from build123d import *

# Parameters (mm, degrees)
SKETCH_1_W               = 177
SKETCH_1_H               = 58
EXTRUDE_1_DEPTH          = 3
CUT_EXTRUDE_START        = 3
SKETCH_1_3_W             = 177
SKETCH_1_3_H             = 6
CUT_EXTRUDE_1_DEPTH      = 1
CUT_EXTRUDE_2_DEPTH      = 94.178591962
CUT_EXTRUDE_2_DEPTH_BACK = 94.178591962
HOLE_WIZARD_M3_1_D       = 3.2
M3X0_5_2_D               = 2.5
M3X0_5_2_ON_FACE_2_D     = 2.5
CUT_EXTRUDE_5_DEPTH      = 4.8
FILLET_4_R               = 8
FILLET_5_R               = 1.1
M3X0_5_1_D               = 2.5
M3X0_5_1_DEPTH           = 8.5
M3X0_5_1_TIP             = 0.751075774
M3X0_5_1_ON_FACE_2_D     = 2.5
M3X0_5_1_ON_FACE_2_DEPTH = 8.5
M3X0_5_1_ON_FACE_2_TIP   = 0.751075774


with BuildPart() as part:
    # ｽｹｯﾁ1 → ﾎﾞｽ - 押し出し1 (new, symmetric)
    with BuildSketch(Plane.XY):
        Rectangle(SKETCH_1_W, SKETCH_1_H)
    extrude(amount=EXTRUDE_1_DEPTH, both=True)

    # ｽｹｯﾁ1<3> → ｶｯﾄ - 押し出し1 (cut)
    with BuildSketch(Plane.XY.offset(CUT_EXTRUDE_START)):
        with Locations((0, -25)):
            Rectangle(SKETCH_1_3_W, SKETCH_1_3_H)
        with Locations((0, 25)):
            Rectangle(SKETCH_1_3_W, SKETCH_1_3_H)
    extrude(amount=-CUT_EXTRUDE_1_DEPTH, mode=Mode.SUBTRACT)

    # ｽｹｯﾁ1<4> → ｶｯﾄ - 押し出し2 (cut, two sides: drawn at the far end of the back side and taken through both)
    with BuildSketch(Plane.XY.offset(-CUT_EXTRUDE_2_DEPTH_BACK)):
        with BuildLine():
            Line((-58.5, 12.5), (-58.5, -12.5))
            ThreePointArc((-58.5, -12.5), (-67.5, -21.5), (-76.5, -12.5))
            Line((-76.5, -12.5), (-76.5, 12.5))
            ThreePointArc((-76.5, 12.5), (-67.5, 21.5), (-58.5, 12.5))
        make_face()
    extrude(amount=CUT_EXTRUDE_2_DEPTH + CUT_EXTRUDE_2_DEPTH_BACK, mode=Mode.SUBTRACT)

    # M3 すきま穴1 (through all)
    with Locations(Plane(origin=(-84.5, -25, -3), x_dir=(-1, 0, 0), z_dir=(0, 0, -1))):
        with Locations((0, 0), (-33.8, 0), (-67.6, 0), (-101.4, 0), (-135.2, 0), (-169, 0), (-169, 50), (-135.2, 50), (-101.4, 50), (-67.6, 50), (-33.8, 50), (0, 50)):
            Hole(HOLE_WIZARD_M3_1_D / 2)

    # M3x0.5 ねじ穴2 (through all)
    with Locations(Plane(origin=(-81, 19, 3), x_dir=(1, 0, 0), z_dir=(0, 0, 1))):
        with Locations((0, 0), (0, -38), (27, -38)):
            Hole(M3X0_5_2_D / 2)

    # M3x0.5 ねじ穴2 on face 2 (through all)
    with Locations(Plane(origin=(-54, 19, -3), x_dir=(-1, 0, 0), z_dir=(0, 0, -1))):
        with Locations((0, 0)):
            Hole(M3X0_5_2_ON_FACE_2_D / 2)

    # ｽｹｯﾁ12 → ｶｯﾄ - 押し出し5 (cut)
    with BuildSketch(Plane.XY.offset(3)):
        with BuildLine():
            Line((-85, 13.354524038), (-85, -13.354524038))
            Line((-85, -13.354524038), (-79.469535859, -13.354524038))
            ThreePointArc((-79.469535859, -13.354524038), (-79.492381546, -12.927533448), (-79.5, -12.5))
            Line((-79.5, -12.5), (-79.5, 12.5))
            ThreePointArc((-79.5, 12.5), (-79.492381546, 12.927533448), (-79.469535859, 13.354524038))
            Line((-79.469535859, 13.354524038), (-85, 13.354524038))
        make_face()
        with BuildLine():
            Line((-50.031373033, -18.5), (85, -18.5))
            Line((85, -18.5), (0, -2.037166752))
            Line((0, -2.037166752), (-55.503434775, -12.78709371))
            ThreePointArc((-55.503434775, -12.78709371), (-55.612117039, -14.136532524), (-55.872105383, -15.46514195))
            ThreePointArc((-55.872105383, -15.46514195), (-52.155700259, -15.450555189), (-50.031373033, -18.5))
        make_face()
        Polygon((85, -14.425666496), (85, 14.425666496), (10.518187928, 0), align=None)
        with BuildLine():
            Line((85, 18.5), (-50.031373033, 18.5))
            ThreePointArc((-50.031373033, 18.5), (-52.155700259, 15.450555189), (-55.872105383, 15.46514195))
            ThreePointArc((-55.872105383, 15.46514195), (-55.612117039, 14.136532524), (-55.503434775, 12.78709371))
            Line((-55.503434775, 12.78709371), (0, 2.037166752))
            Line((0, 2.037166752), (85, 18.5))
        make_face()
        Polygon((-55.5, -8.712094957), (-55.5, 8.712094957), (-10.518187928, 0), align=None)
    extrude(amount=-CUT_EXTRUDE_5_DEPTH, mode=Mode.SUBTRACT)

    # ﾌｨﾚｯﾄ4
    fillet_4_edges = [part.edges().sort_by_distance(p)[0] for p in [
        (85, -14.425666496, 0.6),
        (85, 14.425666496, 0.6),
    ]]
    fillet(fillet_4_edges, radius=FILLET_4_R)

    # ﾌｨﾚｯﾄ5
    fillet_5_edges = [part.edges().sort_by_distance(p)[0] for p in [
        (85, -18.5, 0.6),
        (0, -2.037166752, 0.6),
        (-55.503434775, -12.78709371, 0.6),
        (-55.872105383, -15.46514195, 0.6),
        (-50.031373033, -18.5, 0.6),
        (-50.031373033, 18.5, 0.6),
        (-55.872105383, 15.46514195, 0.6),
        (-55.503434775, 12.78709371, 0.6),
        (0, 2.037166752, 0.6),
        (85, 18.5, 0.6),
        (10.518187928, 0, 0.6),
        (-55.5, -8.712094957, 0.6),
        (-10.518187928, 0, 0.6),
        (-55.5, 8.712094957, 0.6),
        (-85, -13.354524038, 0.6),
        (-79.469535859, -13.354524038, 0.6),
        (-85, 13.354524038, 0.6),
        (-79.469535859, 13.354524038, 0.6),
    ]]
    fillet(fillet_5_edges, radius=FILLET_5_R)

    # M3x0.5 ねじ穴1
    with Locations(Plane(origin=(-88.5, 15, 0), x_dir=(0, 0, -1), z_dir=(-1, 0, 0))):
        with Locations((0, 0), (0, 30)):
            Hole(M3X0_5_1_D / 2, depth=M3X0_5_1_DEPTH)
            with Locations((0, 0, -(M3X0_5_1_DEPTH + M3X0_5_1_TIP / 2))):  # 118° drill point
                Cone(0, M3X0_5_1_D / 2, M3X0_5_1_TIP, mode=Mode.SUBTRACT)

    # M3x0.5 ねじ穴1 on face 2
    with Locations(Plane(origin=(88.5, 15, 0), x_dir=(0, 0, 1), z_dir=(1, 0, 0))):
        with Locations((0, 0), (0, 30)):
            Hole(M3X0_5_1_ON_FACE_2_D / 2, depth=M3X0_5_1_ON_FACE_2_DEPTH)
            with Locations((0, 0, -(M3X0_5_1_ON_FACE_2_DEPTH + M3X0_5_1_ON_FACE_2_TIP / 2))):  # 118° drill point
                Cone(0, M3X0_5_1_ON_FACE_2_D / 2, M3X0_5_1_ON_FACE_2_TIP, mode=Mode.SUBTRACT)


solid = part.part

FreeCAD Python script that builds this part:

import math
import FreeCAD as App
import Part
import Sketcher
Q = App.Units.Quantity


def edges_at(feature, points):
    """Names of the edges that pass closest to the given points."""
    edges = feature.Shape.Edges
    near = lambda p: min(range(len(edges)), key=lambda i: edges[i].distToShape(Part.Vertex(*p))[0])
    return sorted({f"Edge{near(p) + 1}" for p in points})

doc = App.newDocument("Part")
params = doc.addObject("Spreadsheet::Sheet", "Params")
for row, (alias, value) in enumerate([
    ("sketch1_width", "177 mm"),
    ("sketch1_height", "58 mm"),
    ("pad1_length", "6 mm"),
    ("sketch2_width", "177 mm"),
    ("sketch2_height", "6 mm"),
    ("pocket1_length", "1 mm"),
    ("sketch3_radius", "9 mm"),
    ("sketch3_height", "25 mm"),
    ("sketch4_diameter", "3.2 mm"),
    ("hole_diameter", "3.2 mm"),
    ("sketch5_diameter", "2.5 mm"),
    ("hole2_diameter", "2.5 mm"),
    ("sketch6_diameter", "2.5 mm"),
    ("hole3_diameter", "2.5 mm"),
    ("sketch7_radius", "12.000001 mm"),
    ("sketch7_radius2", "4 mm"),
    ("sketch7_height", "25 mm"),
    ("pocket3_length", "4.8 mm"),
    ("fillet_radius", "8 mm"),
    ("fillet2_radius", "1.1 mm"),
    ("sketch8_diameter", "2.5 mm"),
    ("hole4_diameter", "2.5 mm"),
    ("hole4_depth", "8.5 mm"),
    ("sketch9_diameter", "2.5 mm"),
    ("hole5_diameter", "2.5 mm"),
    ("hole5_depth", "8.5 mm"),
], start=1):
    params.set(f"A{row}", alias)
    params.set(f"B{row}", "=" + value)
    params.setAlias(f"B{row}", alias)

body = doc.addObject("PartDesign::Body", "Body")

sketch1 = body.newObject("Sketcher::SketchObject", "Sketch")
sketch1.AttachmentSupport = (doc.getObject("XY_Plane"), [""])
sketch1.MapMode = "FlatFace"
sketch1.addGeometry(Part.LineSegment(App.Vector(-88, 29, 0), App.Vector(-88, -29, 0)), False)
sketch1.addGeometry(Part.LineSegment(App.Vector(-88, -29, 0), App.Vector(88, -29, 0)), False)
sketch1.addGeometry(Part.LineSegment(App.Vector(88, -29, 0), App.Vector(88, 29, 0)), False)
sketch1.addGeometry(Part.LineSegment(App.Vector(88, 29, 0), App.Vector(-88, 29, 0)), False)
sketch1.addConstraint(Sketcher.Constraint("Coincident", 0, 2, 1, 1))
sketch1.addConstraint(Sketcher.Constraint("Coincident", 1, 2, 2, 1))
sketch1.addConstraint(Sketcher.Constraint("Coincident", 2, 2, 3, 1))
sketch1.addConstraint(Sketcher.Constraint("Coincident", 3, 2, 0, 1))
sketch1.addConstraint(Sketcher.Constraint("Vertical", 0))
sketch1.addConstraint(Sketcher.Constraint("Horizontal", 1))
sketch1.addConstraint(Sketcher.Constraint("Vertical", 2))
sketch1.addConstraint(Sketcher.Constraint("Horizontal", 3))
sketch1.addConstraint(Sketcher.Constraint("Symmetric", 0, 2, 2, 2, -1, 1))
sketch1.addConstraint(Sketcher.Constraint("DistanceX", 1, 1, 1, 2, Q("177 mm")))
sketch1.addConstraint(Sketcher.Constraint("DistanceY", 0, 2, 0, 1, Q("58 mm")))
sketch1.setExpression("Constraints[9]", "Params.sketch1_width")
sketch1.setExpression("Constraints[10]", "Params.sketch1_height")
pad1 = body.newObject("PartDesign::Pad", "Pad")
pad1.Profile = sketch1
pad1.setExpression("Length", "Params.pad1_length")
pad1.Midplane = True

sketch2 = body.newObject("Sketcher::SketchObject", "Sketch001")
sketch2.AttachmentSupport = (doc.getObject("XY_Plane"), [""])
sketch2.MapMode = "FlatFace"
sketch2.AttachmentOffset = App.Placement(App.Vector(0, 0, 3), App.Rotation())
sketch2.addGeometry(Part.LineSegment(App.Vector(-88, -22, 0), App.Vector(-88, -28, 0)), False)
sketch2.addGeometry(Part.LineSegment(App.Vector(-88, -28, 0), App.Vector(88, -28, 0)), False)
sketch2.addGeometry(Part.LineSegment(App.Vector(88, -28, 0), App.Vector(88, -22, 0)), False)
sketch2.addGeometry(Part.LineSegment(App.Vector(88, -22, 0), App.Vector(-88, -22, 0)), False)
sketch2.addGeometry(Part.LineSegment(App.Vector(-88, 28, 0), App.Vector(-88, 22, 0)), False)
sketch2.addGeometry(Part.LineSegment(App.Vector(-88, 22, 0), App.Vector(88, 22, 0)), False)
sketch2.addGeometry(Part.LineSegment(App.Vector(88, 22, 0), App.Vector(88, 28, 0)), False)
sketch2.addGeometry(Part.LineSegment(App.Vector(88, 28, 0), App.Vector(-88, 28, 0)), False)
sketch2.addConstraint(Sketcher.Constraint("Coincident", 0, 2, 1, 1))
sketch2.addConstraint(Sketcher.Constraint("Coincident", 1, 2, 2, 1))
sketch2.addConstraint(Sketcher.Constraint("Coincident", 2, 2, 3, 1))
sketch2.addConstraint(Sketcher.Constraint("Coincident", 3, 2, 0, 1))
sketch2.addConstraint(Sketcher.Constraint("Coincident", 4, 2, 5, 1))
sketch2.addConstraint(Sketcher.Constraint("Coincident", 5, 2, 6, 1))
sketch2.addConstraint(Sketcher.Constraint("Coincident", 6, 2, 7, 1))
sketch2.addConstraint(Sketcher.Constraint("Coincident", 7, 2, 4, 1))
sketch2.addConstraint(Sketcher.Constraint("Vertical", 0))
sketch2.addConstraint(Sketcher.Constraint("Horizontal", 1))
sketch2.addConstraint(Sketcher.Constraint("Vertical", 2))
sketch2.addConstraint(Sketcher.Constraint("Horizontal", 3))
sketch2.addConstraint(Sketcher.Constraint("Vertical", 4))
sketch2.addConstraint(Sketcher.Constraint("Horizontal", 5))
sketch2.addConstraint(Sketcher.Constraint("Vertical", 6))
sketch2.addConstraint(Sketcher.Constraint("Horizontal", 7))
sketch2.addConstraint(Sketcher.Constraint("Symmetric", 2, 2, 4, 2, -1, 1))
sketch2.addConstraint(Sketcher.Constraint("Symmetric", 0, 2, 6, 2, -1, 1))
sketch2.addConstraint(Sketcher.Constraint("Vertical", 3, 2, 4, 2))
sketch2.addConstraint(Sketcher.Constraint("DistanceX", 1, 1, 1, 2, Q("177 mm")))
sketch2.addConstraint(Sketcher.Constraint("DistanceY", 0, 2, 0, 1, Q("6 mm")))
sketch2.addConstraint(Sketcher.Constraint("DistanceY", 0, 2, -1, 1, Q("28 mm")))
sketch2.setExpression("Constraints[19]", "Params.sketch2_width")
sketch2.setExpression("Constraints[20]", "Params.sketch2_height")
pocket1 = body.newObject("PartDesign::Pocket", "Pocket")
pocket1.Profile = sketch2
pocket1.setExpression("Length", "Params.pocket1_length")

sketch3 = body.newObject("Sketcher::SketchObject", "Sketch002")
sketch3.AttachmentSupport = (doc.getObject("XY_Plane"), [""])
sketch3.MapMode = "FlatFace"
sketch3.addGeometry(Part.LineSegment(App.Vector(-58, -12, 0), App.Vector(-58, 12, 0)), False)
sketch3.addGeometry(Part.ArcOfCircle(Part.Circle(App.Vector(-68, 12, 0), App.Vector(0, 0, 1), 9), math.radians(0), math.radians(180)), False)
sketch3.addGeometry(Part.LineSegment(App.Vector(-76, 12, 0), App.Vector(-76, -12, 0)), False)
sketch3.addGeometry(Part.ArcOfCircle(Part.Circle(App.Vector(-68, -12, 0), App.Vector(0, 0, 1), 9), math.radians(180), math.radians(360)), False)
sketch3.addConstraint(Sketcher.Constraint("Tangent", 0, 2, 1, 1))
sketch3.addConstraint(Sketcher.Constraint("Tangent", 1, 2, 2, 1))
sketch3.addConstraint(Sketcher.Constraint("Tangent", 2, 2, 3, 1))
sketch3.addConstraint(Sketcher.Constraint("Tangent", 3, 2, 0, 1))
sketch3.addConstraint(Sketcher.Constraint("Vertical", 0))
sketch3.addConstraint(Sketcher.Constraint("Vertical", 2))
sketch3.addConstraint(Sketcher.Constraint("Radius", 1, Q("9 mm")))
sketch3.addConstraint(Sketcher.Constraint("DistanceY", 0, 1, 0, 2, Q("25 mm")))
sketch3.addConstraint(Sketcher.Constraint("DistanceX", 1, 3, -1, 1, Q("67.5 mm")))
sketch3.addConstraint(Sketcher.Constraint("DistanceY", -1, 1, 1, 3, Q("12.5 mm")))
sketch3.setExpression("Constraints[6]", "Params.sketch3_radius")
sketch3.setExpression("Constraints[7]", "Params.sketch3_height")
pocket2 = body.newObject("PartDesign::Pocket", "Pocket001")
pocket2.Profile = sketch3
pocket2.Type = "ThroughAll"
pocket2.Midplane = True

sketch4 = body.newObject("Sketcher::SketchObject", "Sketch003")
sketch4.AttachmentSupport = (doc.getObject("XY_Plane"), [""])
sketch4.MapMode = "FlatFace"
sketch4.AttachmentOffset = App.Placement(App.Vector(0, 0, -3), App.Rotation())
sketch4.addGeometry(Part.Circle(App.Vector(-84.5, -25, 0), App.Vector(0, 0, 1), 1.6), False)
sketch4.addGeometry(Part.Circle(App.Vector(-50.7, -25, 0), App.Vector(0, 0, 1), 1.6), False)
sketch4.addGeometry(Part.Circle(App.Vector(-16.9, -25, 0), App.Vector(0, 0, 1), 1.6), False)
sketch4.addGeometry(Part.Circle(App.Vector(16.9, -25, 0), App.Vector(0, 0, 1), 1.6), False)
sketch4.addGeometry(Part.Circle(App.Vector(50.7, -25, 0), App.Vector(0, 0, 1), 1.6), False)
sketch4.addGeometry(Part.Circle(App.Vector(84.5, -25, 0), App.Vector(0, 0, 1), 1.6), False)
sketch4.addGeometry(Part.Circle(App.Vector(84.5, 25, 0), App.Vector(0, 0, 1), 1.6), False)
sketch4.addGeometry(Part.Circle(App.Vector(50.7, 25, 0), App.Vector(0, 0, 1), 1.6), False)
sketch4.addGeometry(Part.Circle(App.Vector(16.9, 25, 0), App.Vector(0, 0, 1), 1.6), False)
sketch4.addGeometry(Part.Circle(App.Vector(-16.9, 25, 0), App.Vector(0, 0, 1), 1.6), False)
sketch4.addGeometry(Part.Circle(App.Vector(-50.7, 25, 0), App.Vector(0, 0, 1), 1.6), False)
sketch4.addGeometry(Part.Circle(App.Vector(-84.5, 25, 0), App.Vector(0, 0, 1), 1.6), False)
sketch4.addConstraint(Sketcher.Constraint("Equal", 0, 1))
sketch4.addConstraint(Sketcher.Constraint("Equal", 1, 2))
sketch4.addConstraint(Sketcher.Constraint("Equal", 2, 3))
sketch4.addConstraint(Sketcher.Constraint("Equal", 3, 4))
sketch4.addConstraint(Sketcher.Constraint("Equal", 4, 5))
sketch4.addConstraint(Sketcher.Constraint("Equal", 5, 6))
sketch4.addConstraint(Sketcher.Constraint("Equal", 6, 7))
sketch4.addConstraint(Sketcher.Constraint("Equal", 7, 8))
sketch4.addConstraint(Sketcher.Constraint("Equal", 8, 9))
sketch4.addConstraint(Sketcher.Constraint("Equal", 9, 10))
sketch4.addConstraint(Sketcher.Constraint("Equal", 10, 11))
sketch4.addConstraint(Sketcher.Constraint("Symmetric", 0, 3, 6, 3, -1, 1))
sketch4.addConstraint(Sketcher.Constraint("Symmetric", 1, 3, 7, 3, -1, 1))
sketch4.addConstraint(Sketcher.Constraint("Symmetric", 2, 3, 8, 3, -1, 1))
sketch4.addConstraint(Sketcher.Constraint("Symmetric", 3, 3, 9, 3, -1, 1))
sketch4.addConstraint(Sketcher.Constraint("Symmetric", 4, 3, 10, 3, -1, 1))
sketch4.addConstraint(Sketcher.Constraint("Symmetric", 5, 3, 11, 3, -1, 1))
sketch4.addConstraint(Sketcher.Constraint("Symmetric", 2, 3, 3, 3, -2))
sketch4.addConstraint(Sketcher.Constraint("Symmetric", 1, 3, 4, 3, -2))
sketch4.addConstraint(Sketcher.Constraint("Symmetric", 0, 3, 5, 3, -2))
sketch4.addConstraint(Sketcher.Constraint("Horizontal", 0, 3, 1, 3))
sketch4.addConstraint(Sketcher.Constraint("Horizontal", 1, 3, 2, 3))
sketch4.addConstraint(Sketcher.Constraint("Diameter", 0, Q("3.2 mm")))
sketch4.addConstraint(Sketcher.Constraint("DistanceY", 0, 3, -1, 1, Q("25 mm")))
sketch4.addConstraint(Sketcher.Constraint("DistanceX", 0, 3, 5, 3, Q("169 mm")))
sketch4.addConstraint(Sketcher.Constraint("DistanceX", 1, 3, -1, 1, Q("50.7 mm")))
sketch4.addConstraint(Sketcher.Constraint("DistanceX", 2, 3, -1, 1, Q("16.9 mm")))
sketch4.setExpression("Constraints[22]", "Params.sketch4_diameter")
doc.recompute()
hole = body.newObject("PartDesign::Hole", "Hole")
hole.Profile = sketch4
hole.ThreadType = "None"
hole.setExpression("Diameter", "Params.hole_diameter")
hole.DepthType = "ThroughAll"
hole.Reversed = True

sketch5 = body.newObject("Sketcher::SketchObject", "Sketch004")
sketch5.AttachmentSupport = (doc.getObject("XY_Plane"), [""])
sketch5.MapMode = "FlatFace"
sketch5.AttachmentOffset = App.Placement(App.Vector(0, 0, 3), App.Rotation())
sketch5.addGeometry(Part.Circle(App.Vector(-81, 19, 0), App.Vector(0, 0, 1), 1.2), False)
sketch5.addGeometry(Part.Circle(App.Vector(-81, -19, 0), App.Vector(0, 0, 1), 1.2), False)
sketch5.addGeometry(Part.Circle(App.Vector(-54, -19, 0), App.Vector(0, 0, 1), 1.2), False)
sketch5.addConstraint(Sketcher.Constraint("Equal", 0, 1))
sketch5.addConstraint(Sketcher.Constraint("Equal", 1, 2))
sketch5.addConstraint(Sketcher.Constraint("Symmetric", 0, 3, 1, 3, -1))
sketch5.addConstraint(Sketcher.Constraint("Horizontal", 1, 3, 2, 3))
sketch5.addConstraint(Sketcher.Constraint("Diameter", 0, Q("2.5 mm")))
sketch5.addConstraint(Sketcher.Constraint("DistanceX", 0, 3, -1, 1, Q("81 mm")))
sketch5.addConstraint(Sketcher.Constraint("DistanceY", -1, 1, 0, 3, Q("19 mm")))
sketch5.addConstraint(Sketcher.Constraint("DistanceX", 2, 3, -1, 1, Q("54 mm")))
sketch5.setExpression("Constraints[4]", "Params.sketch5_diameter")
doc.recompute()
hole2 = body.newObject("PartDesign::Hole", "Hole001")
hole2.Profile = sketch5
hole2.ThreadType = "None"
hole2.setExpression("Diameter", "Params.hole2_diameter")
hole2.DepthType = "ThroughAll"

sketch6 = body.newObject("Sketcher::SketchObject", "Sketch005")
sketch6.AttachmentSupport = (doc.getObject("XY_Plane"), [""])
sketch6.MapMode = "FlatFace"
sketch6.AttachmentOffset = App.Placement(App.Vector(0, 0, -3), App.Rotation())
sketch6.addGeometry(Part.Circle(App.Vector(-54, 19, 0), App.Vector(0, 0, 1), 1.2), False)
sketch6.addConstraint(Sketcher.Constraint("Diameter", 0, Q("2.5 mm")))
sketch6.addConstraint(Sketcher.Constraint("DistanceX", 0, 3, -1, 1, Q("54 mm")))
sketch6.addConstraint(Sketcher.Constraint("DistanceY", -1, 1, 0, 3, Q("19 mm")))
sketch6.setExpression("Constraints[0]", "Params.sketch6_diameter")
doc.recompute()
hole3 = body.newObject("PartDesign::Hole", "Hole002")
hole3.Profile = sketch6
hole3.ThreadType = "None"
hole3.setExpression("Diameter", "Params.hole3_diameter")
hole3.DepthType = "ThroughAll"
hole3.Reversed = True

sketch7 = body.newObject("Sketcher::SketchObject", "Sketch006")
sketch7.AttachmentSupport = (doc.getObject("XY_Plane"), [""])
sketch7.MapMode = "FlatFace"
sketch7.AttachmentOffset = App.Placement(App.Vector(0, 0, 3), App.Rotation())
sketch7.addGeometry(Part.LineSegment(App.Vector(-85, 13.4, 0), App.Vector(-85, -13.4, 0)), False)
sketch7.addGeometry(Part.LineSegment(App.Vector(-85, -13.4, 0), App.Vector(-79.5, -13.4, 0)), False)
sketch7.addGeometry(Part.ArcOfCircle(Part.Circle(App.Vector(-67.5, -12.5, 0), App.Vector(0, 0, 1), 12), math.radians(-180), math.radians(-175.92)), False)
sketch7.addGeometry(Part.LineSegment(App.Vector(-79.5, -12.5, 0), App.Vector(-79.5, 12.5, 0)), False)
sketch7.addGeometry(Part.ArcOfCircle(Part.Circle(App.Vector(-67.5, 12.5, 0), App.Vector(0, 0, 1), 12), math.radians(175.92), math.radians(180)), False)
sketch7.addGeometry(Part.LineSegment(App.Vector(-79.5, 13.4, 0), App.Vector(-85, 13.4, 0)), False)
sketch7.addGeometry(Part.LineSegment(App.Vector(-50, -18.5, 0), App.Vector(85, -18.5, 0)), False)
sketch7.addGeometry(Part.LineSegment(App.Vector(85, -18.5, 0), App.Vector(0, -2, 0)), False)
sketch7.addGeometry(Part.LineSegment(App.Vector(0, -2, 0), App.Vector(-55.5, -12.8, 0)), False)
sketch7.addGeometry(Part.ArcOfCircle(Part.Circle(App.Vector(-67.5, -12.5, 0), App.Vector(0, 0, 1), 12), math.radians(-14.31), math.radians(-1.37)), False)
sketch7.addGeometry(Part.ArcOfCircle(Part.Circle(App.Vector(-54, -19, 0), App.Vector(0, 0, 1), 4), math.radians(7), math.radians(118)), False)
sketch7.addGeometry(Part.LineSegment(App.Vector(85, -14.4, 0), App.Vector(85, 14.4, 0)), False)
sketch7.addGeometry(Part.LineSegment(App.Vector(85, 14.4, 0), App.Vector(10.5, 0, 0)), False)
sketch7.addGeometry(Part.LineSegment(App.Vector(10.5, 0, 0), App.Vector(85, -14.4, 0)), False)
sketch7.addGeometry(Part.LineSegment(App.Vector(85, 18.5, 0), App.Vector(-50, 18.5, 0)), False)
sketch7.addGeometry(Part.ArcOfCircle(Part.Circle(App.Vector(-54, 19, 0), App.Vector(0, 0, 1), 4), math.radians(-118), math.radians(-7)), False)
sketch7.addGeometry(Part.ArcOfCircle(Part.Circle(App.Vector(-67.5, 12.5, 0), App.Vector(0, 0, 1), 12), math.radians(1.37), math.radians(14.31)), False)
sketch7.addGeometry(Part.LineSegment(App.Vector(-55.5, 12.8, 0), App.Vector(0, 2, 0)), False)
sketch7.addGeometry(Part.LineSegment(App.Vector(0, 2, 0), App.Vector(85, 18.5, 0)), False)
sketch7.addGeometry(Part.LineSegment(App.Vector(-55.5, 8.7, 0), App.Vector(-55.5, -8.7, 0)), False)
sketch7.addGeometry(Part.LineSegment(App.Vector(-55.5, -8.7, 0), App.Vector(-10.5, 0, 0)), False)
sketch7.addGeometry(Part.LineSegment(App.Vector(-10.5, 0, 0), App.Vector(-55.5, 8.7, 0)), False)
sketch7.addConstraint(Sketcher.Constraint("Coincident", 0, 2, 1, 1))
sketch7.addConstraint(Sketcher.Constraint("Coincident", 1, 2, 2, 2))
sketch7.addConstraint(Sketcher.Constraint("Tangent", 2, 1, 3, 1))
sketch7.addConstraint(Sketcher.Constraint("Tangent", 3, 2, 4, 2))
sketch7.addConstraint(Sketcher.Constraint("Coincident", 4, 1, 5, 1))
sketch7.addConstraint(Sketcher.Constraint("Coincident", 5, 2, 0, 1))
sketch7.addConstraint(Sketcher.Constraint("Coincident", 6, 2, 7, 1))
sketch7.addConstraint(Sketcher.Constraint("Coincident", 7, 2, 8, 1))
sketch7.addConstraint(Sketcher.Constraint("Coincident", 8, 2, 9, 2))
sketch7.addConstraint(Sketcher.Constraint("Coincident", 9, 1, 10, 2))
sketch7.addConstraint(Sketcher.Constraint("Coincident", 10, 1, 6, 1))
sketch7.addConstraint(Sketcher.Constraint("Coincident", 11, 2, 12, 1))
sketch7.addConstraint(Sketcher.Constraint("Coincident", 12, 2, 13, 1))
sketch7.addConstraint(Sketcher.Constraint("Coincident", 13, 2, 11, 1))
sketch7.addConstraint(Sketcher.Constraint("Coincident", 14, 2, 15, 2))
sketch7.addConstraint(Sketcher.Constraint("Coincident", 15, 1, 16, 2))
sketch7.addConstraint(Sketcher.Constraint("Coincident", 16, 1, 17, 1))
sketch7.addConstraint(Sketcher.Constraint("Coincident", 17, 2, 18, 1))
sketch7.addConstraint(Sketcher.Constraint("Coincident", 18, 2, 14, 1))
sketch7.addConstraint(Sketcher.Constraint("Coincident", 19, 2, 20, 1))
sketch7.addConstraint(Sketcher.Constraint("Coincident", 20, 2, 21, 1))
sketch7.addConstraint(Sketcher.Constraint("Coincident", 21, 2, 19, 1))
sketch7.addConstraint(Sketcher.Constraint("Vertical", 0))
sketch7.addConstraint(Sketcher.Constraint("Horizontal", 1))
sketch7.addConstraint(Sketcher.Constraint("Vertical", 3))
sketch7.addConstraint(Sketcher.Constraint("Horizontal", 5))
sketch7.addConstraint(Sketcher.Constraint("Horizontal", 6))
sketch7.addConstraint(Sketcher.Constraint("Vertical", 11))
sketch7.addConstraint(Sketcher.Constraint("Horizontal", 14))
sketch7.addConstraint(Sketcher.Constraint("Vertical", 19))
sketch7.addConstraint(Sketcher.Constraint("Coincident", 9, 3, 2, 3))
sketch7.addConstraint(Sketcher.Constraint("Coincident", 16, 3, 4, 3))
sketch7.addConstraint(Sketcher.Constraint("Equal", 2, 4))
sketch7.addConstraint(Sketcher.Constraint("Equal", 4, 9))
sketch7.addConstraint(Sketcher.Constraint("Equal", 10, 15))
sketch7.addConstraint(Sketcher.Constraint("Equal", 9, 16))
sketch7.addConstraint(Sketcher.Constraint("Symmetric", 7, 2, 17, 2, -1, 1))
sketch7.addConstraint(Sketcher.Constraint("Symmetric", 12, 2, 20, 2, -1, 1))
sketch7.addConstraint(Sketcher.Constraint("Symmetric", 10, 3, 15, 3, -1))
sketch7.addConstraint(Sketcher.Constraint("Symmetric", 1, 2, 4, 1, -1))
sketch7.addConstraint(Sketcher.Constraint("Symmetric", 6, 2, 18, 2, -1))
sketch7.addConstraint(Sketcher.Constraint("PointOnObject", 7, 2, -2))
sketch7.addConstraint(Sketcher.Constraint("PointOnObject", 12, 2, -1))
sketch7.addConstraint(Sketcher.Constraint("Parallel", 8, 12))
sketch7.addConstraint(Sketcher.Constraint("Parallel", 7, 13))
sketch7.addConstraint(Sketcher.Constraint("Parallel", 13, 17))
sketch7.addConstraint(Sketcher.Constraint("Parallel", 12, 18))
sketch7.addConstraint(Sketcher.Constraint("Parallel", 18, 20))
sketch7.addConstraint(Sketcher.Constraint("Parallel", 17, 21))
sketch7.addConstraint(Sketcher.Constraint("Vertical", 6, 2, 11, 2))
sketch7.addConstraint(Sketcher.Constraint("Radius", 2, Q("12.000001 mm")))
sketch7.addConstraint(Sketcher.Constraint("Radius", 10, Q("4 mm")))
sketch7.addConstraint(Sketcher.Constraint("DistanceY", 3, 1, 3, 2, Q("25 mm")))
sketch7.addConstraint(Sketcher.Constraint("DistanceX", 10, 3, -1, 1, Q("54 mm")))
sketch7.addConstraint(Sketcher.Constraint("DistanceY", 10, 3, -1, 1, Q("19 mm")))
sketch7.addConstraint(Sketcher.Constraint("DistanceX", 0, 2, -1, 1, Q("85 mm")))
sketch7.addConstraint(Sketcher.Constraint("DistanceX", -1, 1, 6, 2, Q("85 mm")))
sketch7.addConstraint(Sketcher.Constraint("DistanceY", 6, 2, 2, 3, Q("6 mm")))
sketch7.addConstraint(Sketcher.Constraint("DistanceX", 2, 3, 19, 2, Q("11.999999 mm")))
sketch7.addConstraint(Sketcher.Constraint("DistanceX", 2, 3, -1, 1, Q("67.499999 mm")))
sketch7.addConstraint(Sketcher.Constraint("DistanceY", 8, 2, 19, 2, Q("4.074999 mm")))
sketch7.addConstraint(Sketcher.Constraint("DistanceY", 0, 2, 0, 1, Q("26.709048 mm")))
sketch7.addConstraint(Sketcher.Constraint("DistanceY", 19, 2, 19, 1, Q("17.42419 mm")))
sketch7.setExpression("Constraints[50]", "Params.sketch7_radius")
sketch7.setExpression("Constraints[51]", "Params.sketch7_radius2")
sketch7.setExpression("Constraints[52]", "Params.sketch7_height")
pocket3 = body.newObject("PartDesign::Pocket", "Pocket002")
pocket3.Profile = sketch7
pocket3.setExpression("Length", "Params.pocket3_length")
doc.recompute()

fillet = body.newObject("PartDesign::Fillet", "Fillet")
fillet.Base = (pocket3, edges_at(pocket3, [(85, -14.426, 0.6), (85, 14.426, 0.6)]))
fillet.setExpression("Radius", "Params.fillet_radius")
doc.recompute()

fillet2 = body.newObject("PartDesign::Fillet", "Fillet001")
fillet2.Base = (fillet, edges_at(fillet, [
    (85, -18.5, 0.6),
    (0, -2.037, 0.6),
    (-55.503, -12.787, 0.6),
    (-55.872, -15.465, 0.6),
    (-50.031, -18.5, 0.6),
    (-50.031, 18.5, 0.6),
    (-55.872, 15.465, 0.6),
    (-55.503, 12.787, 0.6),
    (0, 2.037, 0.6),
    (85, 18.5, 0.6),
    (10.518, 0, 0.6),
    (-55.5, -8.712, 0.6),
    (-10.518, 0, 0.6),
    (-55.5, 8.712, 0.6),
    (-85, -13.355, 0.6),
    (-79.47, -13.355, 0.6),
    (-85, 13.355, 0.6),
    (-79.47, 13.355, 0.6),
]))
fillet2.setExpression("Radius", "Params.fillet2_radius")

sketch8 = body.newObject("Sketcher::SketchObject", "Sketch007")
sketch8.AttachmentSupport = (doc.getObject("YZ_Plane"), [""])
sketch8.MapMode = "FlatFace"
sketch8.AttachmentOffset = App.Placement(App.Vector(0, 0, -88.5), App.Rotation())
sketch8.addGeometry(Part.Circle(App.Vector(15, 0, 0), App.Vector(0, 0, 1), 1.2), False)
sketch8.addGeometry(Part.Circle(App.Vector(-15, 0, 0), App.Vector(0, 0, 1), 1.2), False)
sketch8.addConstraint(Sketcher.Constraint("Equal", 0, 1))
sketch8.addConstraint(Sketcher.Constraint("Symmetric", 0, 3, 1, 3, -1, 1))
sketch8.addConstraint(Sketcher.Constraint("PointOnObject", 0, 3, -1))
sketch8.addConstraint(Sketcher.Constraint("Diameter", 0, Q("2.5 mm")))
sketch8.addConstraint(Sketcher.Constraint("DistanceX", -1, 1, 0, 3, Q("15 mm")))
sketch8.setExpression("Constraints[3]", "Params.sketch8_diameter")
doc.recompute()
hole4 = body.newObject("PartDesign::Hole", "Hole003")
hole4.Profile = sketch8
hole4.ThreadType = "None"
hole4.setExpression("Diameter", "Params.hole4_diameter")
hole4.DepthType = "Dimension"
hole4.setExpression("Depth", "Params.hole4_depth")
hole4.DrillPoint = "Angled"
hole4.DrillPointAngle = 118
hole4.Reversed = True

sketch9 = body.newObject("Sketcher::SketchObject", "Sketch008")
sketch9.AttachmentSupport = (doc.getObject("YZ_Plane"), [""])
sketch9.MapMode = "FlatFace"
sketch9.AttachmentOffset = App.Placement(App.Vector(0, 0, 88.5), App.Rotation())
sketch9.addGeometry(Part.Circle(App.Vector(15, 0, 0), App.Vector(0, 0, 1), 1.2), False)
sketch9.addGeometry(Part.Circle(App.Vector(-15, 0, 0), App.Vector(0, 0, 1), 1.2), False)
sketch9.addConstraint(Sketcher.Constraint("Equal", 0, 1))
sketch9.addConstraint(Sketcher.Constraint("Symmetric", 0, 3, 1, 3, -1, 1))
sketch9.addConstraint(Sketcher.Constraint("PointOnObject", 0, 3, -1))
sketch9.addConstraint(Sketcher.Constraint("Diameter", 0, Q("2.5 mm")))
sketch9.addConstraint(Sketcher.Constraint("DistanceX", -1, 1, 0, 3, Q("15 mm")))
sketch9.setExpression("Constraints[3]", "Params.sketch9_diameter")
doc.recompute()
hole5 = body.newObject("PartDesign::Hole", "Hole004")
hole5.Profile = sketch9
hole5.ThreadType = "None"
hole5.setExpression("Diameter", "Params.hole5_diameter")
hole5.DepthType = "Dimension"
hole5.setExpression("Depth", "Params.hole5_depth")
hole5.DrillPoint = "Angled"
hole5.DrillPointAngle = 118

doc.recompute()
